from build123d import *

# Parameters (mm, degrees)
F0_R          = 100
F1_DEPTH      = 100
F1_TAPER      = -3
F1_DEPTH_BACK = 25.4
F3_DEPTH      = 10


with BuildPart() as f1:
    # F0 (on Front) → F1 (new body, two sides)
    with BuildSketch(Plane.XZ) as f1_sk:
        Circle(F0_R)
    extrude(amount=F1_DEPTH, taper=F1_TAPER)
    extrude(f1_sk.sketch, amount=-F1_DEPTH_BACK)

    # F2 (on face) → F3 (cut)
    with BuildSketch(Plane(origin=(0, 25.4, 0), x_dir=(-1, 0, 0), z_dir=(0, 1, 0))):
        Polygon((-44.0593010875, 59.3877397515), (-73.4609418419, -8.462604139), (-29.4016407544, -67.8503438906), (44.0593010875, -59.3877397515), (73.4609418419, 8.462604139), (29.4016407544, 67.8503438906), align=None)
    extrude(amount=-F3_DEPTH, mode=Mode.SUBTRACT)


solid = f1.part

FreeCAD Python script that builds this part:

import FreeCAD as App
import Part
import Sketcher

V = App.Vector


def add_polygon(sketch, points):
    """Adds a closed chain of lines whose ends are joined by coincident constraints."""
    first, n = sketch.GeometryCount, len(points)
    for a, b in zip(points, points[1:] + points[:1]):
        sketch.addGeometry(Part.LineSegment(App.Vector(*a, 0), App.Vector(*b, 0)), False)
    for i in range(n):
        sketch.addConstraint(Sketcher.Constraint("Coincident", first + i, 2, first + (i + 1) % n, 1))

doc = App.newDocument("Part")
params = doc.addObject("Spreadsheet::Sheet", "Params")
for row, (alias, value) in enumerate([
    ("sketch1_diameter", "200 mm"),
    ("pad1_length", "100 mm"),
    ("pad1_taper", "3 deg"),
    ("pad2_length", "25.4 mm"),
    ("pocket1_length", "10 mm"),
], start=1):
    params.set(f"A{row}", alias)
    params.set(f"B{row}", "=" + value)
    params.setAlias(f"B{row}", alias)

body = doc.addObject("PartDesign::Body", "Body")

sketch1 = body.newObject("Sketcher::SketchObject", "Sketch")
sketch1.AttachmentSupport = (doc.getObject("XZ_Plane"), [""])
sketch1.MapMode = "FlatFace"
sketch1.addGeometry(Part.Circle(V(0, 0, 0), V(0, 0, 1), 100), False)
sketch1.addConstraint([
    Sketcher.Constraint("Coincident", 0, 3, -1, 1),
    Sketcher.Constraint("Diameter", 0, 200.0),
])
sketch1.setExpression("Constraints[1]", "Params.sketch1_diameter")
pad1 = body.newObject("PartDesign::Pad", "Pad")
pad1.Profile = sketch1
pad1.setExpression("Length", "Params.pad1_length")
pad1.setExpression("TaperAngle", "Params.pad1_taper")
pad2 = body.newObject("PartDesign::Pad", "Pad001")
pad2.Profile = sketch1
pad2.setExpression("Length", "Params.pad2_length")
pad2.Reversed = True

sketch2 = body.newObject("Sketcher::SketchObject", "Sketch001")
sketch2.AttachmentSupport = (doc.getObject("XZ_Plane"), [""])
sketch2.MapMode = "FlatFace"
sketch2.AttachmentOffset = App.Placement(V(0, 0, -25.4), App.Rotation())
add_polygon(sketch2, [(44.059301, 59.38774), (73.460942, -8.462604), (29.401641, -67.850344), (-44.059301, -59.38774), (-73.460942, 8.462604), (-29.401641, 67.850344)])
sketch2.addConstraint([
    Sketcher.Constraint("Symmetric", 0, 2, 3, 2, -1, 1),
    Sketcher.Constraint("Symmetric", 1, 2, 4, 2, -1, 1),
    Sketcher.Constraint("Symmetric", 2, 2, 5, 2, -1, 1),
    Sketcher.Constraint("Equal", 0, 1),
    Sketcher.Constraint("Equal", 1, 2),
    Sketcher.Constraint("DistanceX", 2, 2, -1, 1, 44.059301),
    Sketcher.Constraint("DistanceX", 1, 2, 0, 2, 44.059301),
    Sketcher.Constraint("DistanceX", -1, 1, 0, 2, 73.460942),
    Sketcher.Constraint("DistanceY", 2, 2, -1, 1, 59.38774),
])
pocket1 = body.newObject("PartDesign::Pocket", "Pocket")
pocket1.Profile = sketch2
pocket1.setExpression("Length", "Params.pocket1_length")
pocket1.Reversed = True

doc.recompute()
